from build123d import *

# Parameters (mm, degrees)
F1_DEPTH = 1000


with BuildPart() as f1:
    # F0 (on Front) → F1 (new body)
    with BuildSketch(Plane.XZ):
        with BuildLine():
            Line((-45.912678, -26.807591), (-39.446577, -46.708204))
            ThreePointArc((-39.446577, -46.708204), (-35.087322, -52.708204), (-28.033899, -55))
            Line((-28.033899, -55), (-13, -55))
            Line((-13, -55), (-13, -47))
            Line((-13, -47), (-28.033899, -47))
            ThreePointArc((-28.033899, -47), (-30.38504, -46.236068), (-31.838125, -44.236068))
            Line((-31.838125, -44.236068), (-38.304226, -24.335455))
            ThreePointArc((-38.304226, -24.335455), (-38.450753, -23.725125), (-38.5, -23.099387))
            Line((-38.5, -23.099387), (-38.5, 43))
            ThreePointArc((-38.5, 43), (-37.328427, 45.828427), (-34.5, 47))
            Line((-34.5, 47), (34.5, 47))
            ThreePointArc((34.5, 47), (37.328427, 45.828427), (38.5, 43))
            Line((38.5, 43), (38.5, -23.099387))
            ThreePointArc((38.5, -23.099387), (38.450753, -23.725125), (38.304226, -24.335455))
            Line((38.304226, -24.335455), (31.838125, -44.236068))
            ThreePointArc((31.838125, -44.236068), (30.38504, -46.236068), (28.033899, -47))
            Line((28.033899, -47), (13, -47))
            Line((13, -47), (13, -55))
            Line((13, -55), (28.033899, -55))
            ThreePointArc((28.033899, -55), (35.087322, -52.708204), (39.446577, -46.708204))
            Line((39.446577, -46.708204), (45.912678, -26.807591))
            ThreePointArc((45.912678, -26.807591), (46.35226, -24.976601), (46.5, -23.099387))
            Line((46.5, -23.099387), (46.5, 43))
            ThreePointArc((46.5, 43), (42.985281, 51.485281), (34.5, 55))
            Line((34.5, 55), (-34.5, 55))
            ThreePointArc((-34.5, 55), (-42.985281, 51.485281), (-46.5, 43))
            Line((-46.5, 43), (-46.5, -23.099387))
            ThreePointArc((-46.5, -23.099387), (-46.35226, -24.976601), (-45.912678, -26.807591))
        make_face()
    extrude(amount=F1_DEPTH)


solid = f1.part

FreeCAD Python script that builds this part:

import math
import FreeCAD as App
import Part
import Sketcher

V = App.Vector

doc = App.newDocument("Part")
body = doc.addObject("PartDesign::Body", "Body")

# Sketch on XZ plane
sketch1 = body.newObject("Sketcher::SketchObject", "Sketch")
sketch1.AttachmentSupport = (doc.getObject("XZ_Plane"), [""])
sketch1.MapMode = "FlatFace"
sketch1.addGeometry([
    Part.LineSegment(V(-45.912678, -26.807591, 0), V(-39.446577, -46.708204, 0)),  # 0
    Part.ArcOfCircle(Part.Circle(V(-28.033899, -43.000001, 0), V(0, 0, 1), 11.999999), math.radians(-162.000002), math.radians(-89.999999)),  # 1
    Part.LineSegment(V(-28.033899, -55, 0), V(-13, -55, 0)),  # 2
    Part.LineSegment(V(-13, -55, 0), V(-13, -47, 0)),  # 3
    Part.LineSegment(V(-13, -47, 0), V(-28.033899, -47, 0)),  # 4
    Part.ArcOfCircle(Part.Circle(V(-28.033899, -43, 0), V(0, 0, 1), 4), math.radians(-162.000002), math.radians(-89.999999)),  # 5
    Part.LineSegment(V(-31.838125, -44.236068, 0), V(-38.304226, -24.335455, 0)),  # 6
    Part.ArcOfCircle(Part.Circle(V(-34.499975, -23.099383, 0), V(0, 0, 1), 4.000025), math.radians(-179.999941), math.radians(-162.000053)),  # 7
    Part.LineSegment(V(-38.5, -23.099387, 0), V(-38.5, 43, 0)),  # 8
    Part.ArcOfCircle(Part.Circle(V(-34.5, 43, 0), V(0, 0, 1), 4), math.radians(90.000006), math.radians(179.999994)),  # 9
    Part.LineSegment(V(-34.5, 47, 0), V(34.5, 47, 0)),  # 10
    Part.ArcOfCircle(Part.Circle(V(34.5, 43, 0), V(0, 0, 1), 4), math.radians(0.000006), math.radians(89.999994)),  # 11
    Part.LineSegment(V(38.5, 43, 0), V(38.5, -23.099387, 0)),  # 12
    Part.ArcOfCircle(Part.Circle(V(34.499975, -23.099383, 0), V(0, 0, 1), 4.000025), math.radians(-17.999947), math.radians(-0.000059)),  # 13
    Part.LineSegment(V(38.304226, -24.335455, 0), V(31.838125, -44.236068, 0)),  # 14
    Part.ArcOfCircle(Part.Circle(V(28.033899, -43, 0), V(0, 0, 1), 4), math.radians(-90.000001), math.radians(-17.999998)),  # 15
    Part.LineSegment(V(28.033899, -47, 0), V(13, -47, 0)),  # 16
    Part.LineSegment(V(13, -47, 0), V(13, -55, 0)),  # 17
    Part.LineSegment(V(13, -55, 0), V(28.033899, -55, 0)),  # 18
    Part.ArcOfCircle(Part.Circle(V(28.033899, -43.000001, 0), V(0, 0, 1), 11.999999), math.radians(-90.000001), math.radians(-17.999998)),  # 19
    Part.LineSegment(V(39.446577, -46.708204, 0), V(45.912678, -26.807591, 0)),  # 20
    Part.ArcOfCircle(Part.Circle(V(34.500005, -23.099387, 0), V(0, 0, 1), 11.999995), math.radians(-18.000007), math.radians(0.000001)),  # 21
    Part.LineSegment(V(46.5, -23.099387, 0), V(46.5, 43, 0)),  # 22
    Part.ArcOfCircle(Part.Circle(V(34.499999, 42.999999, 0), V(0, 0, 1), 12.000001), math.radians(0.000006), math.radians(89.999994)),  # 23
    Part.LineSegment(V(34.5, 55, 0), V(-34.5, 55, 0)),  # 24
    Part.ArcOfCircle(Part.Circle(V(-34.499999, 42.999999, 0), V(0, 0, 1), 12.000001), math.radians(90.000006), math.radians(179.999994)),  # 25
    Part.LineSegment(V(-46.5, 43, 0), V(-46.5, -23.099387, 0)),  # 26
    Part.ArcOfCircle(Part.Circle(V(-34.500005, -23.099387, 0), V(0, 0, 1), 11.999995), math.radians(179.999999), math.radians(198.000007)),  # 27
], False)
sketch1.addConstraint([
    Sketcher.Constraint("Coincident", 0, 2, 1, 1),
    Sketcher.Constraint("Coincident", 1, 2, 2, 1),
    Sketcher.Constraint("Coincident", 2, 2, 3, 1),
    Sketcher.Constraint("Coincident", 3, 2, 4, 1),
    Sketcher.Constraint("Coincident", 4, 2, 5, 2),
    Sketcher.Constraint("Coincident", 5, 1, 6, 1),
    Sketcher.Constraint("Coincident", 6, 2, 7, 2),
    Sketcher.Constraint("Coincident", 7, 1, 8, 1),
    Sketcher.Constraint("Coincident", 8, 2, 9, 2),
    Sketcher.Constraint("Coincident", 9, 1, 10, 1),
    Sketcher.Constraint("Coincident", 10, 2, 11, 2),
    Sketcher.Constraint("Coincident", 11, 1, 12, 1),
    Sketcher.Constraint("Coincident", 12, 2, 13, 2),
    Sketcher.Constraint("Coincident", 13, 1, 14, 1),
    Sketcher.Constraint("Coincident", 14, 2, 15, 2),
    Sketcher.Constraint("Coincident", 15, 1, 16, 1),
    Sketcher.Constraint("Coincident", 16, 2, 17, 1),
    Sketcher.Constraint("Coincident", 17, 2, 18, 1),
    Sketcher.Constraint("Coincident", 18, 2, 19, 1),
    Sketcher.Constraint("Coincident", 19, 2, 20, 1),
    Sketcher.Constraint("Coincident", 20, 2, 21, 1),
    Sketcher.Constraint("Coincident", 21, 2, 22, 1),
    Sketcher.Constraint("Coincident", 22, 2, 23, 1),
    Sketcher.Constraint("Coincident", 23, 2, 24, 1),
    Sketcher.Constraint("Coincident", 24, 2, 25, 1),
    Sketcher.Constraint("Coincident", 25, 2, 26, 1),
    Sketcher.Constraint("Coincident", 26, 2, 27, 1),
    Sketcher.Constraint("Coincident", 27, 2, 0, 1),
    Sketcher.Constraint("Horizontal", 2),
    Sketcher.Constraint("Vertical", 3),
    Sketcher.Constraint("Horizontal", 4),
    Sketcher.Constraint("Vertical", 8),
    Sketcher.Constraint("Horizontal", 10),
    Sketcher.Constraint("Vertical", 12),
    Sketcher.Constraint("Horizontal", 16),
    Sketcher.Constraint("Vertical", 17),
    Sketcher.Constraint("Horizontal", 18),
    Sketcher.Constraint("Vertical", 22),
    Sketcher.Constraint("Horizontal", 24),
    Sketcher.Constraint("Vertical", 26),
    Sketcher.Constraint("Coincident", 5, 3, 1, 3),
    Sketcher.Constraint("Coincident", 19, 3, 15, 3),
    Sketcher.Constraint("Coincident", 23, 3, 11, 3),
    Sketcher.Constraint("Coincident", 25, 3, 9, 3),
    Sketcher.Constraint("Radius", 1, 11.999999),
    Sketcher.Constraint("Radius", 5, 4.0),
    Sketcher.Constraint("Radius", 9, 4.0),
    Sketcher.Constraint("Radius", 11, 4.0),
    Sketcher.Constraint("Radius", 15, 4.0),
    Sketcher.Constraint("Radius", 19, 11.999999),
    Sketcher.Constraint("Radius", 23, 12.000001),
    Sketcher.Constraint("DistanceX", 10, 1, 10, 2, 69.0),
    Sketcher.Constraint("DistanceX", 24, 2, 24, 1, 69.0),
    Sketcher.Constraint("DistanceY", 1, 3, -1, 1, 43.000001),
    Sketcher.Constraint("DistanceY", -1, 1, 9, 3, 43.0),
    Sketcher.Constraint("DistanceY", 15, 3, -1, 1, 43.0),
    Sketcher.Constraint("DistanceX", 2, 2, -1, 1, 13.0),
    Sketcher.Constraint("DistanceY", -1, 1, 8, 2, 43.0),
    Sketcher.Constraint("DistanceY", -1, 1, 11, 1, 43.0),
    Sketcher.Constraint("DistanceX", -1, 1, 16, 2, 13.0),
    Sketcher.Constraint("DistanceY", -1, 1, 22, 2, 43.0),
    Sketcher.Constraint("DistanceY", -1, 1, 25, 2, 43.0),
    Sketcher.Constraint("DistanceX", 9, 3, 11, 3, 68.999999),
    Sketcher.Constraint("DistanceX", 8, 2, 9, 1, 4.0),
    Sketcher.Constraint("DistanceX", 23, 2, 11, 1, 4.0),
    Sketcher.Constraint("DistanceX", 9, 3, -1, 1, 34.5),
    Sketcher.Constraint("DistanceX", 2, 1, 2, 2, 15.033899),
    Sketcher.Constraint("DistanceX", 4, 2, 4, 1, 15.033899),
    Sketcher.Constraint("DistanceX", 16, 2, 16, 1, 15.033899),
    Sketcher.Constraint("DistanceX", 18, 1, 18, 2, 15.033899),
    Sketcher.Constraint("Radius", 7, 4.000025),
    Sketcher.Constraint("Radius", 13, 4.000025),
    Sketcher.Constraint("Radius", 21, 11.999995),
    Sketcher.Constraint("Radius", 27, 11.999995),
    Sketcher.Constraint("DistanceX", 1, 3, -1, 1, 28.033899),
    Sketcher.Constraint("DistanceX", -1, 1, 15, 3, 28.033899),
    Sketcher.Constraint("DistanceX", 0, 2, 7, 3, 4.946602),
    Sketcher.Constraint("DistanceX", 6, 2, 5, 1, 6.466101),
    Sketcher.Constraint("DistanceX", 14, 2, 13, 1, 6.466101),
    Sketcher.Constraint("DistanceX", 19, 2, 20, 2, 6.466101),
    Sketcher.Constraint("DistanceY", 8, 1, 8, 2, 66.099387),
    Sketcher.Constraint("DistanceY", 12, 2, 12, 1, 66.099387),
    Sketcher.Constraint("DistanceY", 22, 1, 22, 2, 66.099387),
    Sketcher.Constraint("DistanceY", 26, 2, 26, 1, 66.099387),
    Sketcher.Constraint("DistanceY", 5, 1, -1, 1, 44.236068),
    Sketcher.Constraint("DistanceY", 14, 2, -1, 1, 44.236068),
    Sketcher.Constraint("DistanceY", 20, 2, -1, 1, 26.807591),
    Sketcher.Constraint("DistanceY", 27, 2, -1, 1, 26.807591),
    Sketcher.Constraint("DistanceY", 13, 3, 23, 3, 66.099382),
    Sketcher.Constraint("DistanceY", 7, 3, 25, 3, 66.099382),
    Sketcher.Constraint("DistanceY", 14, 2, 21, 3, 21.136681),
    Sketcher.Constraint("DistanceX", 27, 2, 6, 2, 7.608452),
])
pad1 = body.newObject("PartDesign::Pad", "Pad")
pad1.Profile = sketch1
pad1.Length = 1000

doc.recompute()
